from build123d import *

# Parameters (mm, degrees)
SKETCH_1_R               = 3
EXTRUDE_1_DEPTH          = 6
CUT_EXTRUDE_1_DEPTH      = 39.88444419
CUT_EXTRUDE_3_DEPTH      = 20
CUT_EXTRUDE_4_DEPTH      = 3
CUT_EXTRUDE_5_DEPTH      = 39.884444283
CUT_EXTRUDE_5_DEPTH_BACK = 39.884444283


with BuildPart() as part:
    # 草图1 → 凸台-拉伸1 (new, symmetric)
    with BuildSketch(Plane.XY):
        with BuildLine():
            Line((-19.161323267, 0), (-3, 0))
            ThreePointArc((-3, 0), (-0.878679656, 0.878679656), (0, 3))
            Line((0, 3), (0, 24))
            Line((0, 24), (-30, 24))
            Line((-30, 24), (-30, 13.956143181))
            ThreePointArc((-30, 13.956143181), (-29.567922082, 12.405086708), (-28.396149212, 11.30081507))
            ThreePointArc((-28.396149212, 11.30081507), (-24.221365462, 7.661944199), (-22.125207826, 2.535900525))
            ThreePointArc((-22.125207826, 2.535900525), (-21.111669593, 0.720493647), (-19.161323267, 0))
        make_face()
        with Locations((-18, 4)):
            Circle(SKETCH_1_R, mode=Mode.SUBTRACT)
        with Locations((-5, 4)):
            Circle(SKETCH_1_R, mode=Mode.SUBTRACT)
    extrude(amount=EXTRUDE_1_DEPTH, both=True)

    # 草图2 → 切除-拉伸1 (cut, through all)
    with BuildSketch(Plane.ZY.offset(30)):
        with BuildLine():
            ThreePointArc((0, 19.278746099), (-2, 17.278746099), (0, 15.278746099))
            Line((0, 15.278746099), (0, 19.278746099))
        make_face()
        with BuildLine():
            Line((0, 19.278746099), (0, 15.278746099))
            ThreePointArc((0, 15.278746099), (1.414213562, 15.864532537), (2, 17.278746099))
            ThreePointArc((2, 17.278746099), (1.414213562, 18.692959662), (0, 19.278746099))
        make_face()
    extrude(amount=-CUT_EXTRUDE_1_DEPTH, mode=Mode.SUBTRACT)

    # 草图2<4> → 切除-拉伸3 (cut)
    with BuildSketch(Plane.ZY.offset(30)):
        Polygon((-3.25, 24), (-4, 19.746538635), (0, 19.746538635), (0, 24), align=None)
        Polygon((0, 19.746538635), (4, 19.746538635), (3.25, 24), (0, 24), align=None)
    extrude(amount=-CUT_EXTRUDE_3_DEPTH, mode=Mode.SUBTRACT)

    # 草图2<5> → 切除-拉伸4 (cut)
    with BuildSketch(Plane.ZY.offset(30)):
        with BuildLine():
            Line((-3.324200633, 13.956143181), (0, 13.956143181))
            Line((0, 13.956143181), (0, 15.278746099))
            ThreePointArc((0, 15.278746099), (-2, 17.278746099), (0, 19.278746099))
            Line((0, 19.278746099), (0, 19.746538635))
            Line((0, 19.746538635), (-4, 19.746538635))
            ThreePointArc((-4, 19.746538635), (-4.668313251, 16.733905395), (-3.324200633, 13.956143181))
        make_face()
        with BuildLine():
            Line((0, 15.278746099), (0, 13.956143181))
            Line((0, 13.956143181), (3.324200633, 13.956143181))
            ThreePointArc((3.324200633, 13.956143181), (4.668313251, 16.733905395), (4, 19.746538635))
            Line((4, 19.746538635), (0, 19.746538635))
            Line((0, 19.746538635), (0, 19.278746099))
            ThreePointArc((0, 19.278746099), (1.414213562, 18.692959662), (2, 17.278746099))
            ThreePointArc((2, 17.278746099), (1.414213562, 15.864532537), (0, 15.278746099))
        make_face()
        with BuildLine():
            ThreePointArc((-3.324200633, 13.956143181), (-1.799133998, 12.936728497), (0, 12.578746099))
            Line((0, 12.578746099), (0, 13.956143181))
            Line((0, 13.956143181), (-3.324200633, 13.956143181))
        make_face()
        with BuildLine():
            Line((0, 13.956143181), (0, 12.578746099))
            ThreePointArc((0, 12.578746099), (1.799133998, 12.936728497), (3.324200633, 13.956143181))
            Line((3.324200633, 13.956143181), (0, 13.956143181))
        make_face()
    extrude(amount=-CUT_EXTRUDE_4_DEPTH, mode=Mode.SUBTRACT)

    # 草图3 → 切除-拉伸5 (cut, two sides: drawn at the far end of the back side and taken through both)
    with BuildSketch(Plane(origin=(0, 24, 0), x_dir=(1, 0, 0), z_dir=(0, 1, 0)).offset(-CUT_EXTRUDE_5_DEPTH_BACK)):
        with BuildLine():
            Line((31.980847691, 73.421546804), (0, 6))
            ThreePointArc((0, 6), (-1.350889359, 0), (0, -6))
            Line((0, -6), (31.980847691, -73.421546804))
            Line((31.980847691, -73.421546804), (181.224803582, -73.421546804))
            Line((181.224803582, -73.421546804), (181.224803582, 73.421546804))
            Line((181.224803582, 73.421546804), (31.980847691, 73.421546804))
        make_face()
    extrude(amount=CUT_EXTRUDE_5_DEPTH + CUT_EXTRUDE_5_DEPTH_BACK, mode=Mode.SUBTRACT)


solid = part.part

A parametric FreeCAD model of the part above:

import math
import FreeCAD as App
import Part
import Sketcher
Q = App.Units.Quantity


def add_polygon(sketch, points):
    """Adds a closed chain of lines whose ends are joined by coincident constraints."""
    first, n = sketch.GeometryCount, len(points)
    for a, b in zip(points, points[1:] + points[:1]):
        sketch.addGeometry(Part.LineSegment(App.Vector(*a, 0), App.Vector(*b, 0)), False)
    for i in range(n):
        sketch.addConstraint(Sketcher.Constraint("Coincident", first + i, 2, first + (i + 1) % n, 1))

doc = App.newDocument("Part")
body = doc.addObject("PartDesign::Body", "Body")

# Sketch on XY plane
sketch1 = body.newObject("Sketcher::SketchObject", "Sketch")
sketch1.AttachmentSupport = (doc.getObject("XY_Plane"), [""])
sketch1.MapMode = "FlatFace"
sketch1.addGeometry([
    Part.LineSegment(App.Vector(-19.2, 0, 0), App.Vector(-3, 0, 0)),  # 0
    Part.ArcOfCircle(Part.Circle(App.Vector(-3, 3, 0), App.Vector(0, 0, 1), 3), math.radians(-90), math.radians(0)),  # 1
    Part.LineSegment(App.Vector(0, 3, 0), App.Vector(0, 24, 0)),  # 2
    Part.LineSegment(App.Vector(0, 24, 0), App.Vector(-30, 24, 0)),  # 3
    Part.LineSegment(App.Vector(-30, 24, 0), App.Vector(-30, 14, 0)),  # 4
    Part.ArcOfCircle(Part.Circle(App.Vector(-27, 14, 0), App.Vector(0, 0, 1), 3), math.radians(180), math.radians(242)),  # 5
    Part.ArcOfCircle(Part.Circle(App.Vector(-34, 0.7, 0), App.Vector(0, 0, 1), 12), math.radians(9), math.radians(62)),  # 6
    Part.ArcOfCircle(Part.Circle(App.Vector(-19.2, 3, 0), App.Vector(0, 0, 1), 3), math.radians(-171), math.radians(-90)),  # 7
    Part.Circle(App.Vector(-18, 4, 0), App.Vector(0, 0, 1), 3),  # 8
    Part.Circle(App.Vector(-5, 4, 0), App.Vector(0, 0, 1), 3),  # 9
], False)
sketch1.addConstraint([
    Sketcher.Constraint("Tangent", 0, 2, 1, 1),
    Sketcher.Constraint("Tangent", 1, 2, 2, 1),
    Sketcher.Constraint("Coincident", 2, 2, 3, 1),
    Sketcher.Constraint("Coincident", 3, 2, 4, 1),
    Sketcher.Constraint("Tangent", 4, 2, 5, 1),
    Sketcher.Constraint("Tangent", 5, 2, 6, 2),
    Sketcher.Constraint("Tangent", 6, 1, 7, 1),
    Sketcher.Constraint("Tangent", 7, 2, 0, 1),
    Sketcher.Constraint("Horizontal", 0),
    Sketcher.Constraint("Vertical", 2),
    Sketcher.Constraint("Horizontal", 3),
    Sketcher.Constraint("Vertical", 4),
    Sketcher.Constraint("Equal", 1, 5),
    Sketcher.Constraint("Equal", 5, 7),
    Sketcher.Constraint("Equal", 7, 8),
    Sketcher.Constraint("Equal", 8, 9),
    Sketcher.Constraint("PointOnObject", 0, 2, -1),
    Sketcher.Constraint("PointOnObject", 1, 2, -2),
    Sketcher.Constraint("Horizontal", 8, 3, 9, 3),
    Sketcher.Constraint("Diameter", 8, Q("6 mm")),
    Sketcher.Constraint("Radius", 6, Q("12 mm")),
    Sketcher.Constraint("DistanceX", 3, 2, 3, 1, Q("30 mm")),
    Sketcher.Constraint("DistanceY", 2, 1, 2, 2, Q("21 mm")),
    Sketcher.Constraint("DistanceX", 8, 3, -1, 1, Q("18 mm")),
    Sketcher.Constraint("DistanceY", -1, 1, 8, 3, Q("4 mm")),
    Sketcher.Constraint("DistanceX", 9, 3, -1, 1, Q("5 mm")),
    Sketcher.Constraint("DistanceY", -1, 1, 6, 1, Q("2.535901 mm")),
    Sketcher.Constraint("DistanceX", 0, 1, 0, 2, Q("16.161323 mm")),
])
pad1 = body.newObject("PartDesign::Pad", "Pad")
pad1.Profile = sketch1
pad1.Length = 12
pad1.Midplane = True

# Sketch on YZ plane
sketch2 = body.newObject("Sketcher::SketchObject", "Sketch001")
sketch2.AttachmentSupport = (doc.getObject("YZ_Plane"), [""])
sketch2.MapMode = "FlatFace"
sketch2.AttachmentOffset = App.Placement(App.Vector(0, 0, -30), App.Rotation())
sketch2.addGeometry([
    Part.ArcOfCircle(Part.Circle(App.Vector(17.3, 0, 0), App.Vector(0, 0, 1), 2), math.radians(180), math.radians(360)),
    Part.ArcOfCircle(Part.Circle(App.Vector(17.3, 0, 0), App.Vector(0, 0, 1), 2), math.radians(90), math.radians(180)),
    Part.ArcOfCircle(Part.Circle(App.Vector(17.3, 0, 0), App.Vector(0, 0, 1), 2), math.radians(0), math.radians(90)),
], False)
sketch2.addConstraint([
    Sketcher.Constraint("Tangent", 0, 1, 1, 2),
    Sketcher.Constraint("Tangent", 1, 1, 2, 2),
    Sketcher.Constraint("Tangent", 2, 1, 0, 2),
    Sketcher.Constraint("PointOnObject", 0, 3, -1),
    Sketcher.Constraint("PointOnObject", 0, 1, -1),
    Sketcher.Constraint("PointOnObject", 2, 1, -1),
    Sketcher.Constraint("Vertical", 2, 3, 1, 1),
    Sketcher.Constraint("Radius", 0, Q("2 mm")),
    Sketcher.Constraint("DistanceX", -1, 1, 0, 3, Q("17.278746 mm")),
])
pocket1 = body.newObject("PartDesign::Pocket", "Pocket")
pocket1.Profile = sketch2
pocket1.Type = "ThroughAll"
pocket1.Reversed = True

# Sketch on YZ plane
sketch3 = body.newObject("Sketcher::SketchObject", "Sketch002")
sketch3.AttachmentSupport = (doc.getObject("YZ_Plane"), [""])
sketch3.MapMode = "FlatFace"
sketch3.AttachmentOffset = App.Placement(App.Vector(0, 0, -30), App.Rotation())
add_polygon(sketch3, [(24, -3.2), (19.7, -4), (19.7, 4), (24, 3.2)])  # lines 0-3
sketch3.addConstraint([
    Sketcher.Constraint("Vertical", 1),
    Sketcher.Constraint("Vertical", 3),
    Sketcher.Constraint("Equal", 0, 2),
    Sketcher.Constraint("DistanceY", 1, 1, 1, 2, Q("8 mm")),
    Sketcher.Constraint("Angle", 0, Q("-170 deg")),
    Sketcher.Constraint("DistanceY", 3, 2, 3, 1, Q("6.5 mm")),
    Sketcher.Constraint("DistanceY", 0, 2, -1, 1, Q("4 mm")),
    Sketcher.Constraint("DistanceX", -1, 1, 2, 2, Q("24 mm")),
])
pocket2 = body.newObject("PartDesign::Pocket", "Pocket001")
pocket2.Profile = sketch3
pocket2.Length = 20
pocket2.Reversed = True

# Sketch on YZ plane
sketch4 = body.newObject("Sketcher::SketchObject", "Sketch003")
sketch4.AttachmentSupport = (doc.getObject("YZ_Plane"), [""])
sketch4.MapMode = "FlatFace"
sketch4.AttachmentOffset = App.Placement(App.Vector(0, 0, -30), App.Rotation())
sketch4.addGeometry([
    Part.ArcOfCircle(Part.Circle(App.Vector(17.3, 0, 0), App.Vector(0, 0, 1), 4.7), math.radians(-135), math.radians(-58)),  # 0
    Part.ArcOfCircle(Part.Circle(App.Vector(17.3, 0, 0), App.Vector(0, 0, 1), 4.7), math.radians(-180), math.radians(-135)),  # 1
    Part.ArcOfCircle(Part.Circle(App.Vector(17.3, 0, 0), App.Vector(0, 0, 1), 4.7), math.radians(135), math.radians(180)),  # 2
    Part.ArcOfCircle(Part.Circle(App.Vector(17.3, 0, 0), App.Vector(0, 0, 1), 4.7), math.radians(58), math.radians(135)),  # 3
    Part.LineSegment(App.Vector(19.7, 4, 0), App.Vector(19.7, -4, 0)),  # 4
    Part.ArcOfCircle(Part.Circle(App.Vector(17.3, 0, 0), App.Vector(0, 0, 1), 2), math.radians(90), math.radians(180)),  # 5
    Part.ArcOfCircle(Part.Circle(App.Vector(17.3, 0, 0), App.Vector(0, 0, 1), 2), math.radians(180), math.radians(360)),  # 6
    Part.ArcOfCircle(Part.Circle(App.Vector(17.3, 0, 0), App.Vector(0, 0, 1), 2), math.radians(0), math.radians(90)),  # 7
], False)
sketch4.addConstraint([
    Sketcher.Constraint("Tangent", 0, 1, 1, 2),
    Sketcher.Constraint("Tangent", 1, 1, 2, 2),
    Sketcher.Constraint("Tangent", 2, 1, 3, 2),
    Sketcher.Constraint("Coincident", 3, 1, 4, 1),
    Sketcher.Constraint("Coincident", 4, 2, 0, 2),
    Sketcher.Constraint("Tangent", 5, 2, 6, 1),
    Sketcher.Constraint("Tangent", 6, 2, 7, 1),
    Sketcher.Constraint("Tangent", 7, 2, 5, 1),
    Sketcher.Constraint("Vertical", 4),
    Sketcher.Constraint("Coincident", 2, 3, 0, 3),
    Sketcher.Constraint("Coincident", 5, 3, 0, 3),
    Sketcher.Constraint("Equal", 2, 3),
    Sketcher.Constraint("Symmetric", 0, 1, 2, 1, -1),
    Sketcher.Constraint("PointOnObject", 1, 1, -1),
    Sketcher.Constraint("PointOnObject", 5, 2, -1),
    Sketcher.Constraint("PointOnObject", 6, 2, -1),
    Sketcher.Constraint("Vertical", 6, 3, 7, 2),
    Sketcher.Constraint("Radius", 5, Q("2 mm")),
    Sketcher.Constraint("Radius", 0, Q("4.7 mm")),
    Sketcher.Constraint("DistanceY", 4, 2, 4, 1, Q("8 mm")),
    Sketcher.Constraint("DistanceY", 0, 1, -1, 1, Q("3.324201 mm")),
    Sketcher.Constraint("DistanceX", -1, 1, 3, 1, Q("19.746539 mm")),
])
pocket3 = body.newObject("PartDesign::Pocket", "Pocket002")
pocket3.Profile = sketch4
pocket3.Length = 3
pocket3.Reversed = True

# Sketch on XZ plane
sketch5 = body.newObject("Sketcher::SketchObject", "Sketch004")
sketch5.AttachmentSupport = (doc.getObject("XZ_Plane"), [""])
sketch5.MapMode = "FlatFace"
sketch5.AttachmentOffset = App.Placement(App.Vector(0, 0, -24), App.Rotation())
sketch5.addGeometry([
    Part.LineSegment(App.Vector(32, -73, 0), App.Vector(0, -6, 0)),  # 0
    Part.ArcOfCircle(Part.Circle(App.Vector(13, 0, 0), App.Vector(0, 0, 1), 14), math.radians(155), math.radians(205)),  # 1
    Part.LineSegment(App.Vector(0, 6, 0), App.Vector(32, 73, 0)),  # 2
    Part.LineSegment(App.Vector(32, 73, 0), App.Vector(181, 73, 0)),  # 3
    Part.LineSegment(App.Vector(181, 73, 0), App.Vector(181, -73, 0)),  # 4
    Part.LineSegment(App.Vector(181, -73, 0), App.Vector(32, -73, 0)),  # 5
], False)
sketch5.addConstraint([
    Sketcher.Constraint("Tangent", 0, 2, 1, 2),
    Sketcher.Constraint("Tangent", 1, 1, 2, 1),
    Sketcher.Constraint("Coincident", 2, 2, 3, 1),
    Sketcher.Constraint("Coincident", 3, 2, 4, 1),
    Sketcher.Constraint("Coincident", 4, 2, 5, 1),
    Sketcher.Constraint("Coincident", 5, 2, 0, 1),
    Sketcher.Constraint("Horizontal", 3),
    Sketcher.Constraint("Vertical", 4),
    Sketcher.Constraint("Horizontal", 5),
    Sketcher.Constraint("Symmetric", 0, 2, 1, 1, -1, 1),
    Sketcher.Constraint("Symmetric", 2, 2, 5, 2, -1),
    Sketcher.Constraint("Radius", 1, Q("14 mm")),
    Sketcher.Constraint("DistanceY", 0, 2, -1, 1, Q("6 mm")),
    Sketcher.Constraint("DistanceX", 3, 1, 3, 2, Q("149.243956 mm")),
    Sketcher.Constraint("DistanceY", 4, 2, 4, 1, Q("146.843094 mm")),
])
pocket4 = body.newObject("PartDesign::Pocket", "Pocket003")
pocket4.Profile = sketch5
pocket4.Type = "ThroughAll"
pocket4.Midplane = True

doc.recompute()
